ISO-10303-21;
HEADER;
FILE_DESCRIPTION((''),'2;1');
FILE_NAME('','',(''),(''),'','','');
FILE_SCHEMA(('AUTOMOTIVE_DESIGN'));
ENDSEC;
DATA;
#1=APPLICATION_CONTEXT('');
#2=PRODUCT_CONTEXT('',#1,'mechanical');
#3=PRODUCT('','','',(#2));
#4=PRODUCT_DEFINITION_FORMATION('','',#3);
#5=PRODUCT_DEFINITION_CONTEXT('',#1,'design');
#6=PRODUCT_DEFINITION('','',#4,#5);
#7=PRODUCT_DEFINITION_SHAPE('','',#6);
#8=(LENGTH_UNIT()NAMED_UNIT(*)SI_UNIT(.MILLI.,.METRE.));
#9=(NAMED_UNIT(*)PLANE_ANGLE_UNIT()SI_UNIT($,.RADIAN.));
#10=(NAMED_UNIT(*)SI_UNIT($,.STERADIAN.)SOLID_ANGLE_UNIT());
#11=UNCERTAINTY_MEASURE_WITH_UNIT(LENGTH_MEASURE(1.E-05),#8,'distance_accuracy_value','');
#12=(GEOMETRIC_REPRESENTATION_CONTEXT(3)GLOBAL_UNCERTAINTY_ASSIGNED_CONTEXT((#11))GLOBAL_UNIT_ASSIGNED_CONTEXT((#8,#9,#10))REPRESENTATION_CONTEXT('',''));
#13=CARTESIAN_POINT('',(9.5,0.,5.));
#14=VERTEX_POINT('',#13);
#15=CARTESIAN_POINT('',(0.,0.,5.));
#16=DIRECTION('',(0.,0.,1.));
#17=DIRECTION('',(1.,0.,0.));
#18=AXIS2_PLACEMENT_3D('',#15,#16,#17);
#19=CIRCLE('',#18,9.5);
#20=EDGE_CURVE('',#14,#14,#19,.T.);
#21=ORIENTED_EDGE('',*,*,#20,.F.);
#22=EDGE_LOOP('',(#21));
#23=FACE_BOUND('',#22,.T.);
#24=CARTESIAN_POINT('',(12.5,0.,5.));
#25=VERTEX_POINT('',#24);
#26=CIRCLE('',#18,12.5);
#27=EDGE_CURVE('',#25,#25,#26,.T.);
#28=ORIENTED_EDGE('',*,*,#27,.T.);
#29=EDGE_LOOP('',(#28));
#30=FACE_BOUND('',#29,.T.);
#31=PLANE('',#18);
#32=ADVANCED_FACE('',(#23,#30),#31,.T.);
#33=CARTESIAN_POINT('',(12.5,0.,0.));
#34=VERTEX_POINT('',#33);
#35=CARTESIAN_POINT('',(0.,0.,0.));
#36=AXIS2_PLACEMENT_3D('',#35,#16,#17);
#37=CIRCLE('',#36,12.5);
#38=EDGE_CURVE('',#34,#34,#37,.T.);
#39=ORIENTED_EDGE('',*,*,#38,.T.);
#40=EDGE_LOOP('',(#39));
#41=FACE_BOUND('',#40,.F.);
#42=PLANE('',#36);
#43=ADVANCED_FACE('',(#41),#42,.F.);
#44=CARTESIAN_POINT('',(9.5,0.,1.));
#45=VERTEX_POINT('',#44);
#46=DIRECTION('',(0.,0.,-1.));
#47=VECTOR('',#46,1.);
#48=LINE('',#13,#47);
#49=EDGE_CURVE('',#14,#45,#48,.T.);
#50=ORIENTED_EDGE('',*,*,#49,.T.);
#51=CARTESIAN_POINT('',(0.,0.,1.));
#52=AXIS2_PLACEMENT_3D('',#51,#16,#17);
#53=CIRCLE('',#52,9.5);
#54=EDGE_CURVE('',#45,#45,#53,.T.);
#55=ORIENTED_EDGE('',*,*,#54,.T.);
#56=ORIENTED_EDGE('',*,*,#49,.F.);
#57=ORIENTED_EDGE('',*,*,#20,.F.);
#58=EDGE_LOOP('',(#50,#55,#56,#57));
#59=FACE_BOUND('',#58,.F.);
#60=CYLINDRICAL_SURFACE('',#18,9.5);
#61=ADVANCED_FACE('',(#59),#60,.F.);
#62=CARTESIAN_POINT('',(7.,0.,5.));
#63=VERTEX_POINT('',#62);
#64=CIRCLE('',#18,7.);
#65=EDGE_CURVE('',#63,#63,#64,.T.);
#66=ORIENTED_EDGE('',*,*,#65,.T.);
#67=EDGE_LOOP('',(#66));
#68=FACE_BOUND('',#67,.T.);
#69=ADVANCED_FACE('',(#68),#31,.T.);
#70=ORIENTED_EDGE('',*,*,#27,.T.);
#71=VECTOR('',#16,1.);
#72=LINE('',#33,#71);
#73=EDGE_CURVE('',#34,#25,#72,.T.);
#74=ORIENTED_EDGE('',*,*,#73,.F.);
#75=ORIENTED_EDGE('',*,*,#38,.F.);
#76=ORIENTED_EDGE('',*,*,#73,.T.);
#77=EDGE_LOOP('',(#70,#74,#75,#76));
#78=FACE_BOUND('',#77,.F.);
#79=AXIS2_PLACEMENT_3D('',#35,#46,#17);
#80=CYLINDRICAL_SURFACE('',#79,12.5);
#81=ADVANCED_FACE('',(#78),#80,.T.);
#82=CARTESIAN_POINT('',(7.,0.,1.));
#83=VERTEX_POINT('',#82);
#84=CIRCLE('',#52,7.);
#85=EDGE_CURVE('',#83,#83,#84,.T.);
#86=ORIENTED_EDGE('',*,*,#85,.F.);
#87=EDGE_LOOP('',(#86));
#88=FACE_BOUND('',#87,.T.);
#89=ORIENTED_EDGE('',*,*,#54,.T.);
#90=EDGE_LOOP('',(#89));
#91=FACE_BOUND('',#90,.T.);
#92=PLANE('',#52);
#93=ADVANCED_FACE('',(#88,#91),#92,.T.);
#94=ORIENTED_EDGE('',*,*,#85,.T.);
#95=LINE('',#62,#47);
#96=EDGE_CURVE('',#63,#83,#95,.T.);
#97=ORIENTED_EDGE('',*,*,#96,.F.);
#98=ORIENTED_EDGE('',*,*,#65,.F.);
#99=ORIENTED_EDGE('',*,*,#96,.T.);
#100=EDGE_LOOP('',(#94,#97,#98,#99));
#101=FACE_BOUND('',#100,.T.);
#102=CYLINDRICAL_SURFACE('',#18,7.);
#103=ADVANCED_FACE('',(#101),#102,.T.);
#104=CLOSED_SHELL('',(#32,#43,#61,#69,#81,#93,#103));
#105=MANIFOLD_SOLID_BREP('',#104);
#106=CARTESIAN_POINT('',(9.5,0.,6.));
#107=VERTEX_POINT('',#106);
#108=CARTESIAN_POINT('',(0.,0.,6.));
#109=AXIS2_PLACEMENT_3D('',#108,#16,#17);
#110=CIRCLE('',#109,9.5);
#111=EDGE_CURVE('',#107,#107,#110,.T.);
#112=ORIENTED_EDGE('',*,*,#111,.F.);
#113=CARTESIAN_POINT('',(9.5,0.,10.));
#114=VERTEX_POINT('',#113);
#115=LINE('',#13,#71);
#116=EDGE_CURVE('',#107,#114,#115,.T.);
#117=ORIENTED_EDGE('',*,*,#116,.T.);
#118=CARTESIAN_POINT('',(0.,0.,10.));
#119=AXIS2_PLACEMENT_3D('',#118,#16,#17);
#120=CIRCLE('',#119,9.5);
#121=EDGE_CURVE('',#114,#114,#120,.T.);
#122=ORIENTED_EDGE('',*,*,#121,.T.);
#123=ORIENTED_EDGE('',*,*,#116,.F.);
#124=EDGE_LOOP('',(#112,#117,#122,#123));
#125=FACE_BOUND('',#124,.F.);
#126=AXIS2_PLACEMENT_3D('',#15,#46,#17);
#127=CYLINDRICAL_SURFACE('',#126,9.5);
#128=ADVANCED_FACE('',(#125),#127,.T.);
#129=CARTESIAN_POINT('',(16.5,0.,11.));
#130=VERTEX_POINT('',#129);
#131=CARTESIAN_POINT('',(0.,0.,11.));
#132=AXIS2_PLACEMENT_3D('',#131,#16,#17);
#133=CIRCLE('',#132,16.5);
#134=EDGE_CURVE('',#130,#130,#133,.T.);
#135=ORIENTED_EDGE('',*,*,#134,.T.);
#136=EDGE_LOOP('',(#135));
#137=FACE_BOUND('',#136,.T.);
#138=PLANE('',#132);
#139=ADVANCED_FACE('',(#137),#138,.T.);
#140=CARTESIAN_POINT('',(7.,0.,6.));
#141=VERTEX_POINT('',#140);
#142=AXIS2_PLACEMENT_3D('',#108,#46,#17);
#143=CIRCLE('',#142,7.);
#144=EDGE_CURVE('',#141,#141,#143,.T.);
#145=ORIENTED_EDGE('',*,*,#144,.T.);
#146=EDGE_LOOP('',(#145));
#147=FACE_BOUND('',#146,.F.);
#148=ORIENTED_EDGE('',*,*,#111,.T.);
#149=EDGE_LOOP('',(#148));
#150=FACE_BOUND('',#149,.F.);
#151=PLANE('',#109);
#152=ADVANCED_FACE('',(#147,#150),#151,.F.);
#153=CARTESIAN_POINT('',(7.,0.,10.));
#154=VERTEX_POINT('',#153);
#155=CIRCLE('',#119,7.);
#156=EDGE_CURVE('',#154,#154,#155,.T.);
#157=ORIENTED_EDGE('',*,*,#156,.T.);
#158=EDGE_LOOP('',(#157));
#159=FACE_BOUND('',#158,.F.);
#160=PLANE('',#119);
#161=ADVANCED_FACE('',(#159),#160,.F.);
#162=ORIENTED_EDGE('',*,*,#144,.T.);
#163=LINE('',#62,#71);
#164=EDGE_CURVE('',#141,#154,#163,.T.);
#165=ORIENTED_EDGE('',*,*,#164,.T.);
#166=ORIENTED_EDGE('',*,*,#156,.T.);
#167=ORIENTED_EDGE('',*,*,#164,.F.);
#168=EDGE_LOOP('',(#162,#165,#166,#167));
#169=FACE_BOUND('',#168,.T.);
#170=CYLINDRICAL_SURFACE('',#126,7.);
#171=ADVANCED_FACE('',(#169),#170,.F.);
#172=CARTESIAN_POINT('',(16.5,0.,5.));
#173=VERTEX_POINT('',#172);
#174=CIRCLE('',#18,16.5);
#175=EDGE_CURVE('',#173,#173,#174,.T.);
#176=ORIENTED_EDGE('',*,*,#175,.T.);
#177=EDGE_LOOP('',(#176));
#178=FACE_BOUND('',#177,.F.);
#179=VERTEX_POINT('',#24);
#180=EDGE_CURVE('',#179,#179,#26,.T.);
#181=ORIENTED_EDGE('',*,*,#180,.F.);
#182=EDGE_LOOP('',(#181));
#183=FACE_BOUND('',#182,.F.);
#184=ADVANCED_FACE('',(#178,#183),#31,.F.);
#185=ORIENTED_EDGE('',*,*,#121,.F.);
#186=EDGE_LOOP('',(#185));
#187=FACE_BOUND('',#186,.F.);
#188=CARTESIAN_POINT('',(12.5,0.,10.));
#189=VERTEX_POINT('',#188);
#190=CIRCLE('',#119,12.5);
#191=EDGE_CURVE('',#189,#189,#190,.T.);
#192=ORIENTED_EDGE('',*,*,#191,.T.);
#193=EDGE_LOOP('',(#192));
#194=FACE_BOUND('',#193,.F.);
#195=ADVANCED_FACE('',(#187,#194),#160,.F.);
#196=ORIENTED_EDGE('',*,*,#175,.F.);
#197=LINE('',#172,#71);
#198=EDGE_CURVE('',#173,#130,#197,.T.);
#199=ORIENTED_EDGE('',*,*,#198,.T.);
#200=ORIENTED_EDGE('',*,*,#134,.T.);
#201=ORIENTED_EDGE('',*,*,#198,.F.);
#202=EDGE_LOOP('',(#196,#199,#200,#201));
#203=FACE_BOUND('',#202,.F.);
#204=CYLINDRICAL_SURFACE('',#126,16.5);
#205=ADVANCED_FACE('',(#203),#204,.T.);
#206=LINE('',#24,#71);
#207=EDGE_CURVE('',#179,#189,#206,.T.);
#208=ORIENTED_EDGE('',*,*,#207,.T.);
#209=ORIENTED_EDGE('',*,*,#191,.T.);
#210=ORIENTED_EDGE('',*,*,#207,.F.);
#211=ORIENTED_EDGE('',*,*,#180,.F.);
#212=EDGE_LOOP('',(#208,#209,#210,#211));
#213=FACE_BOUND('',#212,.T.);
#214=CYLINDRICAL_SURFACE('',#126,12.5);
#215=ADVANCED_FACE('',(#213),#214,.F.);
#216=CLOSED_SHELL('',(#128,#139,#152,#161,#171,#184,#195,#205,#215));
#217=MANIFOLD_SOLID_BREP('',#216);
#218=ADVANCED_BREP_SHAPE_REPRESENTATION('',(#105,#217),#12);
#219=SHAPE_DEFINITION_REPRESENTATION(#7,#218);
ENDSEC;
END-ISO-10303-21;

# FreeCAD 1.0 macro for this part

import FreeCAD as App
import Part
import Sketcher

doc = App.newDocument("Part")
body = doc.addObject("PartDesign::Body", "Body")

# Sketch on XY plane
sketch1 = body.newObject("Sketcher::SketchObject", "Sketch")
sketch1.AttachmentSupport = (doc.getObject("XY_Plane"), [""])
sketch1.MapMode = "FlatFace"
sketch1.addGeometry(Part.Circle(App.Vector(0, 0, 0), App.Vector(0, 0, 1), 12.5), False)
sketch1.addConstraint([
    Sketcher.Constraint("Coincident", 0, 3, -1, 1),
    Sketcher.Constraint("Diameter", 0, 25.0),
])
pad1 = body.newObject("PartDesign::Pad", "Pad")
pad1.Profile = sketch1
pad1.Length = 5

# Sketch on XY plane
sketch2 = body.newObject("Sketcher::SketchObject", "Sketch001")
sketch2.AttachmentSupport = (doc.getObject("XY_Plane"), [""])
sketch2.MapMode = "FlatFace"
sketch2.AttachmentOffset = App.Placement(App.Vector(0, 0, 5), App.Rotation())
sketch2.addGeometry([
    Part.Circle(App.Vector(0, 0, 0), App.Vector(0, 0, 1), 9.5),
    Part.Circle(App.Vector(0, 0, 0), App.Vector(0, 0, 1), 7),
], False)
sketch2.addConstraint([
    Sketcher.Constraint("Coincident", 0, 3, -1, 1),
    Sketcher.Constraint("Coincident", 1, 3, -1, 1),
    Sketcher.Constraint("Diameter", 0, 19.0),
    Sketcher.Constraint("Diameter", 1, 14.0),
])
pocket1 = body.newObject("PartDesign::Pocket", "Pocket")
pocket1.Profile = sketch2
pocket1.Length = 4
body2 = doc.addObject("PartDesign::Body", "Body001")

# Sketch on XY plane
sketch3 = body2.newObject("Sketcher::SketchObject", "Sketch002")
sketch3.AttachmentSupport = (doc.getObject("XY_Plane001"), [""])
sketch3.MapMode = "FlatFace"
sketch3.AttachmentOffset = App.Placement(App.Vector(0, 0, 5), App.Rotation())
sketch3.addGeometry(Part.Circle(App.Vector(0, 0, 0), App.Vector(0, 0, 1), 16.5), False)
sketch3.addConstraint([
    Sketcher.Constraint("Coincident", 0, 3, -1, 1),
    Sketcher.Constraint("Diameter", 0, 33.0),
])
pad2 = body2.newObject("PartDesign::Pad", "Pad001")
pad2.Profile = sketch3
pad2.Length = 6

# Sketch on XY plane
sketch4 = body2.newObject("Sketcher::SketchObject", "Sketch003")
sketch4.AttachmentSupport = (doc.getObject("XY_Plane001"), [""])
sketch4.MapMode = "FlatFace"
sketch4.AttachmentOffset = App.Placement(App.Vector(0, 0, 5), App.Rotation())
sketch4.addGeometry([
    Part.Circle(App.Vector(0, 0, 0), App.Vector(0, 0, 1), 12.5),
    Part.Circle(App.Vector(0, 0, 0), App.Vector(0, 0, 1), 9.5),
    Part.Circle(App.Vector(0, 0, 0), App.Vector(0, 0, 1), 7),
], False)
sketch4.addConstraint([
    Sketcher.Constraint("Coincident", 0, 3, -1, 1),
    Sketcher.Constraint("Coincident", 1, 3, -1, 1),
    Sketcher.Constraint("Coincident", 2, 3, -1, 1),
    Sketcher.Constraint("Diameter", 0, 25.0),
    Sketcher.Constraint("Diameter", 1, 19.0),
    Sketcher.Constraint("Diameter", 2, 14.0),
])
pocket2 = body2.newObject("PartDesign::Pocket", "Pocket001")
pocket2.Profile = sketch4
pocket2.Length = 5
pocket2.Reversed = True

# Sketch on XY plane
sketch5 = body2.newObject("Sketcher::SketchObject", "Sketch004")
sketch5.AttachmentSupport = (doc.getObject("XY_Plane001"), [""])
sketch5.MapMode = "FlatFace"
sketch5.AttachmentOffset = App.Placement(App.Vector(0, 0, 5), App.Rotation())
sketch5.addGeometry(Part.Circle(App.Vector(0, 0, 0), App.Vector(0, 0, 1), 9.5), False)
sketch5.addConstraint([
    Sketcher.Constraint("Coincident", 0, 3, -1, 1),
    Sketcher.Constraint("Diameter", 0, 19.0),
])
pocket3 = body2.newObject("PartDesign::Pocket", "Pocket002")
pocket3.Profile = sketch5
pocket3.Length = 1
pocket3.Reversed = True

doc.recompute()
